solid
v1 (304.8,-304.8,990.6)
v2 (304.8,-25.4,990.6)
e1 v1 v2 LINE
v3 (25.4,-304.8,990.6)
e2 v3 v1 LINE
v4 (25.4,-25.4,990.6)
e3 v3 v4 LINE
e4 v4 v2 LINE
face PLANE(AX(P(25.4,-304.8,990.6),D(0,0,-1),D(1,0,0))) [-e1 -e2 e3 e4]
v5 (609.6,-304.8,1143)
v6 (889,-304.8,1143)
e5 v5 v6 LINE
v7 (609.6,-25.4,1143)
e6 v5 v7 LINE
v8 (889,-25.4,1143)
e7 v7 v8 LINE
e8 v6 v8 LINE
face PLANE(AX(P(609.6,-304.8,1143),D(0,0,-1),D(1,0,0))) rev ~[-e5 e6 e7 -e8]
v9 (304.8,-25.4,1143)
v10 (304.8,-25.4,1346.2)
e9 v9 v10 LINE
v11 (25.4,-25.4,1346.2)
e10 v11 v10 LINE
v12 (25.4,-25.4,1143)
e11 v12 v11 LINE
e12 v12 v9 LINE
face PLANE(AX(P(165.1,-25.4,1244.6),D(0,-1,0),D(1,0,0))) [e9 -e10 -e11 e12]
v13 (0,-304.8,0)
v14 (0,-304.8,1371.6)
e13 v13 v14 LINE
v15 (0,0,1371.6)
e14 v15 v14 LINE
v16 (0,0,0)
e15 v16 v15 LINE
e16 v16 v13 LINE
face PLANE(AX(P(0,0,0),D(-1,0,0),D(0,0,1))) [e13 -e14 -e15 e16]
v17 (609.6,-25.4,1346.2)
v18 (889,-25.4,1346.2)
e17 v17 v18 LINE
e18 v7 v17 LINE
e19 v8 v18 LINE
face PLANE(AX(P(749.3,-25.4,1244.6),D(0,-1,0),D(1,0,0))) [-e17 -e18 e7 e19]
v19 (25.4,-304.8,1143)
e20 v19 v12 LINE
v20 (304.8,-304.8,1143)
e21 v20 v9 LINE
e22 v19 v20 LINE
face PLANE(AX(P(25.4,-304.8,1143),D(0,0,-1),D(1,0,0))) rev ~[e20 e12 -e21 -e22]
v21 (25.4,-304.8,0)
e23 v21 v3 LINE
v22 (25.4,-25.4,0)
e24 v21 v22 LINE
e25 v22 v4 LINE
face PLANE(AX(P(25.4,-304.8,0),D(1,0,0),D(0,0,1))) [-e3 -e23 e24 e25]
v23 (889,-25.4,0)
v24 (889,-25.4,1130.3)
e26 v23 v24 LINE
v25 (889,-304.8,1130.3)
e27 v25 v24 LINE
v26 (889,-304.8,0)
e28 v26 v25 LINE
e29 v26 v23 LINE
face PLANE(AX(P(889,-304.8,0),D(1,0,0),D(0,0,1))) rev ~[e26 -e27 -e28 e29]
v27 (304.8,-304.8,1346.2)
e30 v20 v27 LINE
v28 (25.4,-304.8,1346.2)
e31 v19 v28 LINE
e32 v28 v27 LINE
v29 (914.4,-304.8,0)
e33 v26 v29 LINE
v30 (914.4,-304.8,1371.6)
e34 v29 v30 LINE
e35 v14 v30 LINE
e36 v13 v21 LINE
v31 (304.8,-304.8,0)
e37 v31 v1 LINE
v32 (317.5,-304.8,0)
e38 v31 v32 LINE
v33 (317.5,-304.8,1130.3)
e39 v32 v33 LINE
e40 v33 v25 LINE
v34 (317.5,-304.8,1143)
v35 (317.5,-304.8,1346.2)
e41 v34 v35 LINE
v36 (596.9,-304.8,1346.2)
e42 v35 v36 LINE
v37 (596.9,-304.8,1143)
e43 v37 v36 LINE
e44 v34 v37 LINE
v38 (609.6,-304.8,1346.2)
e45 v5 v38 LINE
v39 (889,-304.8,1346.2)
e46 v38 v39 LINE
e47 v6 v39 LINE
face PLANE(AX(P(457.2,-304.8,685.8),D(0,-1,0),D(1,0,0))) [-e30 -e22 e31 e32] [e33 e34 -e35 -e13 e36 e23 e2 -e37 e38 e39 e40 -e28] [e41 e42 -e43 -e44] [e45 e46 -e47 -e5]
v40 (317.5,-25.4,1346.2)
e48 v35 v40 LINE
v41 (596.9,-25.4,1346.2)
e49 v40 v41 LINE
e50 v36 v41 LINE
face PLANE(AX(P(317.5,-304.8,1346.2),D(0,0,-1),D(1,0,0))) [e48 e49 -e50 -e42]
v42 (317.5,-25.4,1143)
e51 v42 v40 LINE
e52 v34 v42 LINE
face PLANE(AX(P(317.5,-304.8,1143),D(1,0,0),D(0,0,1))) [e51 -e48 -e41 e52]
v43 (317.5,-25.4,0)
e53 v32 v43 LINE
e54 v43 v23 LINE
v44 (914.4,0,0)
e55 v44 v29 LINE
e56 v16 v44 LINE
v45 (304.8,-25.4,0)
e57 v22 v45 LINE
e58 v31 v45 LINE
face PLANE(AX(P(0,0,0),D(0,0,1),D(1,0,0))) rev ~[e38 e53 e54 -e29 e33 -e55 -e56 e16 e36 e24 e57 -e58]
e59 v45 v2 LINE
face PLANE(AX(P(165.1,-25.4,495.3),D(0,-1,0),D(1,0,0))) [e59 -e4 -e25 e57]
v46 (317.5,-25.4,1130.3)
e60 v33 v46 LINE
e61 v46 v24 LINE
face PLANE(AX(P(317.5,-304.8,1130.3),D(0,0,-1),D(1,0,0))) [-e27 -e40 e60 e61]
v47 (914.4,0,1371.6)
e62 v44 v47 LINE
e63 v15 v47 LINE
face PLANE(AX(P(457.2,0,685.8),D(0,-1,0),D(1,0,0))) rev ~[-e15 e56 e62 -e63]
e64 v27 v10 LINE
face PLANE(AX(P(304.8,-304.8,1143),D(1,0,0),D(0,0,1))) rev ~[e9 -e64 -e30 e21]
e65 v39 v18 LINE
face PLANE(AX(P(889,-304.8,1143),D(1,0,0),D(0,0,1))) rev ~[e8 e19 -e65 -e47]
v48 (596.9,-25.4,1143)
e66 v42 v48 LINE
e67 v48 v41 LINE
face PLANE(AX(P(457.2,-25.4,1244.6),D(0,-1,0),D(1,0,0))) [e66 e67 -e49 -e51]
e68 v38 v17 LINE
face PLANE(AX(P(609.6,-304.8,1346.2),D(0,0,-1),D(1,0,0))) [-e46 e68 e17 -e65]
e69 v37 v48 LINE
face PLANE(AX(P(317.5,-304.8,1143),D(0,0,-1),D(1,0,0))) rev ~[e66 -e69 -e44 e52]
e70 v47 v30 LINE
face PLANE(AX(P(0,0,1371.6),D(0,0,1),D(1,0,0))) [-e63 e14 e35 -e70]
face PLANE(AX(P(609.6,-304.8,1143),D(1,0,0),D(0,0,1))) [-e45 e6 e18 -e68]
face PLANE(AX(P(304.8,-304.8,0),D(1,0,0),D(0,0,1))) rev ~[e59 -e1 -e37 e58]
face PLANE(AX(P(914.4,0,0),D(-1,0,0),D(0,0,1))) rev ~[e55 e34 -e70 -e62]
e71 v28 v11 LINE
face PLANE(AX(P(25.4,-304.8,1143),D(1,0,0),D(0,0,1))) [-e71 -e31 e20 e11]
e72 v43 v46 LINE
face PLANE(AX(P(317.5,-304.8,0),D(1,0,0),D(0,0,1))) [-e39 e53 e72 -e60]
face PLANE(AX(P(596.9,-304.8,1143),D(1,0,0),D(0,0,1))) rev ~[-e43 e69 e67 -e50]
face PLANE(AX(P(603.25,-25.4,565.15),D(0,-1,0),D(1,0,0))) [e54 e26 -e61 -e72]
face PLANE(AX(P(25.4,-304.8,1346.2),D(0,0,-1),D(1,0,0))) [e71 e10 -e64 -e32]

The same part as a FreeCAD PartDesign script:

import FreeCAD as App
import Part
import Sketcher
from FreeCAD import Vector
Q = App.Units.Quantity

doc = App.newDocument("Part")
params = doc.addObject("Spreadsheet::Sheet", "Params")
for row, (alias, value) in enumerate([
    ("sketch1_width", "36 in"),
    ("sketch1_height", "54 in"),
    ("pad1_length", "12 in"),
    ("sketch2_width", "11 in"),
    ("sketch2_height", "39 in"),
    ("sketch2_height2", "8 in"),
    ("sketch2_width2", "22.5 in"),
    ("sketch2_height3", "44.5 in"),
    ("pocket1_length", "11 in"),
], start=1):
    params.set(f"A{row}", alias)
    params.set(f"B{row}", "=" + value)
    params.setAlias(f"B{row}", alias)

body = doc.addObject("PartDesign::Body", "Body")

sketch1 = body.newObject("Sketcher::SketchObject", "Sketch")
sketch1.AttachmentSupport = (doc.getObject("XZ_Plane"), [""])
sketch1.MapMode = "FlatFace"
sketch1.addGeometry(Part.LineSegment(Vector(0, 1372, 0), Vector(0, 0, 0)), False)
sketch1.addGeometry(Part.LineSegment(Vector(0, 0, 0), Vector(914, 0, 0)), False)
sketch1.addGeometry(Part.LineSegment(Vector(914, 0, 0), Vector(914, 1372, 0)), False)
sketch1.addGeometry(Part.LineSegment(Vector(914, 1372, 0), Vector(0, 1372, 0)), False)
sketch1.addConstraint(Sketcher.Constraint("Coincident", 0, 2, 1, 1))
sketch1.addConstraint(Sketcher.Constraint("Coincident", 1, 2, 2, 1))
sketch1.addConstraint(Sketcher.Constraint("Coincident", 2, 2, 3, 1))
sketch1.addConstraint(Sketcher.Constraint("Coincident", 3, 2, 0, 1))
sketch1.addConstraint(Sketcher.Constraint("Vertical", 0))
sketch1.addConstraint(Sketcher.Constraint("Horizontal", 1))
sketch1.addConstraint(Sketcher.Constraint("Vertical", 2))
sketch1.addConstraint(Sketcher.Constraint("Horizontal", 3))
sketch1.addConstraint(Sketcher.Constraint("Coincident", 0, 2, -1, 1))
sketch1.addConstraint(Sketcher.Constraint("DistanceX", 1, 1, 1, 2, Q("36 in")))
sketch1.addConstraint(Sketcher.Constraint("DistanceY", 0, 2, 0, 1, Q("54 in")))
sketch1.setExpression("Constraints[9]", "Params.sketch1_width")
sketch1.setExpression("Constraints[10]", "Params.sketch1_height")
pad1 = body.newObject("PartDesign::Pad", "Pad")
pad1.Profile = sketch1
pad1.setExpression("Length", "Params.pad1_length")

sketch2 = body.newObject("Sketcher::SketchObject", "Sketch001")
sketch2.AttachmentSupport = (doc.getObject("XZ_Plane"), [""])
sketch2.MapMode = "FlatFace"
sketch2.AttachmentOffset = App.Placement(Vector(0, 0, 12 * 25.4), App.Rotation())
sketch2.addGeometry(Part.LineSegment(Vector(318, 1130, 0), Vector(318, 0, 0)), False)
sketch2.addGeometry(Part.LineSegment(Vector(318, 0, 0), Vector(889, 0, 0)), False)
sketch2.addGeometry(Part.LineSegment(Vector(889, 0, 0), Vector(889, 1130, 0)), False)
sketch2.addGeometry(Part.LineSegment(Vector(889, 1130, 0), Vector(318, 1130, 0)), False)
sketch2.addGeometry(Part.LineSegment(Vector(25, 991, 0), Vector(25, 0, 0)), False)
sketch2.addGeometry(Part.LineSegment(Vector(25, 0, 0), Vector(305, 0, 0)), False)
sketch2.addGeometry(Part.LineSegment(Vector(305, 0, 0), Vector(305, 991, 0)), False)
sketch2.addGeometry(Part.LineSegment(Vector(305, 991, 0), Vector(25, 991, 0)), False)
sketch2.addGeometry(Part.LineSegment(Vector(25, 1346, 0), Vector(25, 1143, 0)), False)
sketch2.addGeometry(Part.LineSegment(Vector(25, 1143, 0), Vector(305, 1143, 0)), False)
sketch2.addGeometry(Part.LineSegment(Vector(305, 1143, 0), Vector(305, 1346, 0)), False)
sketch2.addGeometry(Part.LineSegment(Vector(305, 1346, 0), Vector(25, 1346, 0)), False)
sketch2.addGeometry(Part.LineSegment(Vector(318, 1346, 0), Vector(318, 1143, 0)), False)
sketch2.addGeometry(Part.LineSegment(Vector(318, 1143, 0), Vector(597, 1143, 0)), False)
sketch2.addGeometry(Part.LineSegment(Vector(597, 1143, 0), Vector(597, 1346, 0)), False)
sketch2.addGeometry(Part.LineSegment(Vector(597, 1346, 0), Vector(318, 1346, 0)), False)
sketch2.addGeometry(Part.LineSegment(Vector(610, 1346, 0), Vector(610, 1143, 0)), False)
sketch2.addGeometry(Part.LineSegment(Vector(610, 1143, 0), Vector(889, 1143, 0)), False)
sketch2.addGeometry(Part.LineSegment(Vector(889, 1143, 0), Vector(889, 1346, 0)), False)
sketch2.addGeometry(Part.LineSegment(Vector(889, 1346, 0), Vector(610, 1346, 0)), False)
sketch2.addConstraint(Sketcher.Constraint("Coincident", 0, 2, 1, 1))
sketch2.addConstraint(Sketcher.Constraint("Coincident", 1, 2, 2, 1))
sketch2.addConstraint(Sketcher.Constraint("Coincident", 2, 2, 3, 1))
sketch2.addConstraint(Sketcher.Constraint("Coincident", 3, 2, 0, 1))
sketch2.addConstraint(Sketcher.Constraint("Coincident", 4, 2, 5, 1))
sketch2.addConstraint(Sketcher.Constraint("Coincident", 5, 2, 6, 1))
sketch2.addConstraint(Sketcher.Constraint("Coincident", 6, 2, 7, 1))
sketch2.addConstraint(Sketcher.Constraint("Coincident", 7, 2, 4, 1))
sketch2.addConstraint(Sketcher.Constraint("Coincident", 8, 2, 9, 1))
sketch2.addConstraint(Sketcher.Constraint("Coincident", 9, 2, 10, 1))
sketch2.addConstraint(Sketcher.Constraint("Coincident", 10, 2, 11, 1))
sketch2.addConstraint(Sketcher.Constraint("Coincident", 11, 2, 8, 1))
sketch2.addConstraint(Sketcher.Constraint("Coincident", 12, 2, 13, 1))
sketch2.addConstraint(Sketcher.Constraint("Coincident", 13, 2, 14, 1))
sketch2.addConstraint(Sketcher.Constraint("Coincident", 14, 2, 15, 1))
sketch2.addConstraint(Sketcher.Constraint("Coincident", 15, 2, 12, 1))
sketch2.addConstraint(Sketcher.Constraint("Coincident", 16, 2, 17, 1))
sketch2.addConstraint(Sketcher.Constraint("Coincident", 17, 2, 18, 1))
sketch2.addConstraint(Sketcher.Constraint("Coincident", 18, 2, 19, 1))
sketch2.addConstraint(Sketcher.Constraint("Coincident", 19, 2, 16, 1))
sketch2.addConstraint(Sketcher.Constraint("Vertical", 0))
sketch2.addConstraint(Sketcher.Constraint("Horizontal", 1))
sketch2.addConstraint(Sketcher.Constraint("Vertical", 2))
sketch2.addConstraint(Sketcher.Constraint("Horizontal", 3))
sketch2.addConstraint(Sketcher.Constraint("Vertical", 4))
sketch2.addConstraint(Sketcher.Constraint("Horizontal", 5))
sketch2.addConstraint(Sketcher.Constraint("Vertical", 6))
sketch2.addConstraint(Sketcher.Constraint("Horizontal", 7))
sketch2.addConstraint(Sketcher.Constraint("Vertical", 8))
sketch2.addConstraint(Sketcher.Constraint("Horizontal", 9))
sketch2.addConstraint(Sketcher.Constraint("Vertical", 10))
sketch2.addConstraint(Sketcher.Constraint("Horizontal", 11))
sketch2.addConstraint(Sketcher.Constraint("Vertical", 12))
sketch2.addConstraint(Sketcher.Constraint("Horizontal", 13))
sketch2.addConstraint(Sketcher.Constraint("Vertical", 14))
sketch2.addConstraint(Sketcher.Constraint("Horizontal", 15))
sketch2.addConstraint(Sketcher.Constraint("Vertical", 16))
sketch2.addConstraint(Sketcher.Constraint("Horizontal", 17))
sketch2.addConstraint(Sketcher.Constraint("Vertical", 18))
sketch2.addConstraint(Sketcher.Constraint("Horizontal", 19))
sketch2.addConstraint(Sketcher.Constraint("PointOnObject", 0, 2, -1))
sketch2.addConstraint(Sketcher.Constraint("PointOnObject", 4, 2, -1))
sketch2.addConstraint(Sketcher.Constraint("Horizontal", 9, 2, 12, 2))
sketch2.addConstraint(Sketcher.Constraint("Horizontal", 11, 2, 14, 2))
sketch2.addConstraint(Sketcher.Constraint("Horizontal", 13, 2, 16, 2))
sketch2.addConstraint(Sketcher.Constraint("Horizontal", 15, 2, 18, 2))
sketch2.addConstraint(Sketcher.Constraint("Vertical", 7, 2, 8, 2))
sketch2.addConstraint(Sketcher.Constraint("Vertical", 6, 2, 9, 2))
sketch2.addConstraint(Sketcher.Constraint("Vertical", 3, 2, 12, 2))
sketch2.addConstraint(Sketcher.Constraint("Vertical", 2, 2, 17, 2))
sketch2.addConstraint(Sketcher.Constraint("Equal", 11, 13))
sketch2.addConstraint(Sketcher.Constraint("Equal", 15, 17))
sketch2.addConstraint(Sketcher.Constraint("DistanceX", 5, 1, 5, 2, Q("11 in")))
sketch2.addConstraint(Sketcher.Constraint("DistanceY", 4, 2, 4, 1, Q("39 in")))
sketch2.addConstraint(Sketcher.Constraint("DistanceY", 8, 2, 8, 1, Q("8 in")))
sketch2.addConstraint(Sketcher.Constraint("DistanceX", 1, 1, 1, 2, Q("22.5 in")))
sketch2.addConstraint(Sketcher.Constraint("DistanceY", 0, 2, 0, 1, Q("44.5 in")))
sketch2.addConstraint(Sketcher.Constraint("DistanceX", -1, 1, 1, 2, Q("35 in")))
sketch2.addConstraint(Sketcher.Constraint("DistanceX", -1, 1, 4, 2, Q("1 in")))
sketch2.addConstraint(Sketcher.Constraint("DistanceY", -1, 1, 8, 2, Q("45 in")))
sketch2.setExpression("Constraints[52]", "Params.sketch2_width")
sketch2.setExpression("Constraints[53]", "Params.sketch2_height")
sketch2.setExpression("Constraints[54]", "Params.sketch2_height2")
sketch2.setExpression("Constraints[55]", "Params.sketch2_width2")
sketch2.setExpression("Constraints[56]", "Params.sketch2_height3")
pocket1 = body.newObject("PartDesign::Pocket", "Pocket")
pocket1.Profile = sketch2
pocket1.setExpression("Length", "Params.pocket1_length")

doc.recompute()
